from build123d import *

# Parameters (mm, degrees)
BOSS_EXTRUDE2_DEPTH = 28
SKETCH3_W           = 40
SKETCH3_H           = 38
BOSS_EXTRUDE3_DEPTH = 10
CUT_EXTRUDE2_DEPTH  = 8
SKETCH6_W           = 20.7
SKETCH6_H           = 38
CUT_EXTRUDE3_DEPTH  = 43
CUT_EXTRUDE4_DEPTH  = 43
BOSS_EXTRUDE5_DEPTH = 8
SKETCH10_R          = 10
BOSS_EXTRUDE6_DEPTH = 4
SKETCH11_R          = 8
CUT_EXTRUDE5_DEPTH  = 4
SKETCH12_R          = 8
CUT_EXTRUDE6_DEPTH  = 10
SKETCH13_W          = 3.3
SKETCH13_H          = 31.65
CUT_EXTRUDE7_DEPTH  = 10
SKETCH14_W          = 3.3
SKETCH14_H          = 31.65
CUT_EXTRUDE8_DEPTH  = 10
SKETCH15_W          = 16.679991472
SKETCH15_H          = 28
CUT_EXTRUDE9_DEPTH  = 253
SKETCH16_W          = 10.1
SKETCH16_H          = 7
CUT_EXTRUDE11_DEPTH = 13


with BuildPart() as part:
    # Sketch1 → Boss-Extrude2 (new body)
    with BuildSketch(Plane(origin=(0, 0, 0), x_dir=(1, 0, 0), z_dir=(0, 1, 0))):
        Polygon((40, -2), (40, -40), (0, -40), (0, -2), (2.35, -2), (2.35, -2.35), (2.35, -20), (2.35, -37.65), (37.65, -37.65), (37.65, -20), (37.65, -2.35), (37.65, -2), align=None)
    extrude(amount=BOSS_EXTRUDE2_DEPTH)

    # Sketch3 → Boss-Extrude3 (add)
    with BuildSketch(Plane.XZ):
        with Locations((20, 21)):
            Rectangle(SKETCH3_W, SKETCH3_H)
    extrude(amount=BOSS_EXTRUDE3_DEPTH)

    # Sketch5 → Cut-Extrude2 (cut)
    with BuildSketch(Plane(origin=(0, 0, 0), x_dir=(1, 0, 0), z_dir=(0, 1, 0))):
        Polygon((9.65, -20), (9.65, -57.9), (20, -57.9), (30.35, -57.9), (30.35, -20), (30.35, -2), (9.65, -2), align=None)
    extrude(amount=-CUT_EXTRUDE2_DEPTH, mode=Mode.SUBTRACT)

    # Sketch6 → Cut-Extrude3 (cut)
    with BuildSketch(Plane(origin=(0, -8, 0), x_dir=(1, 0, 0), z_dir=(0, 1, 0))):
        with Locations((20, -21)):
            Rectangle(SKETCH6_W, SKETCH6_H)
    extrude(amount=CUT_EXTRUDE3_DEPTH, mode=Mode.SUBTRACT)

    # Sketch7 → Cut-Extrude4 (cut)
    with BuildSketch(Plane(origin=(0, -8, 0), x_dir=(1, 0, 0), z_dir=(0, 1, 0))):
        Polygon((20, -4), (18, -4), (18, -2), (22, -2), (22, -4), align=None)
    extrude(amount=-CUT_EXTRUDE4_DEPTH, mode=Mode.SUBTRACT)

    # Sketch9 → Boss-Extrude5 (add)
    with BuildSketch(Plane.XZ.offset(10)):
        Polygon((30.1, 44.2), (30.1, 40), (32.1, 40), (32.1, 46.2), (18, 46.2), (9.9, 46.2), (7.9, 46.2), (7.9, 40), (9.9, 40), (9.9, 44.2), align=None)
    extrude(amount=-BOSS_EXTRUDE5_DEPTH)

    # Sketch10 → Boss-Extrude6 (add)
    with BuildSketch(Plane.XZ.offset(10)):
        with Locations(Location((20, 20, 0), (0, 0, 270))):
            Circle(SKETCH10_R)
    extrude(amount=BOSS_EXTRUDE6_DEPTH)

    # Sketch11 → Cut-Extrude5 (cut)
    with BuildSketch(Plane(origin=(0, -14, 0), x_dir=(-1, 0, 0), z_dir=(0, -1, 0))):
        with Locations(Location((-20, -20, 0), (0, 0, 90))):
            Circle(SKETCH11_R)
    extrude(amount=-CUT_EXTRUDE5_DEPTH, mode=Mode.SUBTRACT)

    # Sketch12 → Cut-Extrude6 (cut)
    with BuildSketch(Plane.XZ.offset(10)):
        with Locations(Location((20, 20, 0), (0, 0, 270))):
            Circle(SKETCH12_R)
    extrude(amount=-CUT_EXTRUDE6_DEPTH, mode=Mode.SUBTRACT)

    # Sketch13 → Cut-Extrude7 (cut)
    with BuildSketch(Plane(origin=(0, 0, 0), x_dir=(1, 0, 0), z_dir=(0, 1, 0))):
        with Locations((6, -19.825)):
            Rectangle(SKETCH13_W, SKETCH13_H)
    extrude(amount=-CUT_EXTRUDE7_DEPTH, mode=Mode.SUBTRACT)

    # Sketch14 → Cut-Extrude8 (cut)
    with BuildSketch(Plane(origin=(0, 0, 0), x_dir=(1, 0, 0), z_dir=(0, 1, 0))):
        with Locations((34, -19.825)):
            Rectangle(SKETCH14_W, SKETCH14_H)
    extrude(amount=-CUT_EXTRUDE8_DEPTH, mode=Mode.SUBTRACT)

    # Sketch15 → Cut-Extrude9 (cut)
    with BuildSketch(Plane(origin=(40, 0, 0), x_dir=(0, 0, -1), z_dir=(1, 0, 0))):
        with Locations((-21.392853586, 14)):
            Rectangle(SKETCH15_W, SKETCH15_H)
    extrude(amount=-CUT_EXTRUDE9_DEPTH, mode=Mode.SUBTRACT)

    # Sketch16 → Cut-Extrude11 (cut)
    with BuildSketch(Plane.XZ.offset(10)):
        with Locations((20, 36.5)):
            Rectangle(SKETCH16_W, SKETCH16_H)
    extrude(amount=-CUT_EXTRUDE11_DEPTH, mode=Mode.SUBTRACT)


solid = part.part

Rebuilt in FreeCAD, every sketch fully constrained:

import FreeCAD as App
import Part
import Sketcher

V = App.Vector
Q = App.Units.Quantity


def add_polygon(sketch, points):
    """Adds a closed chain of lines whose ends are joined by coincident constraints."""
    first, n = sketch.GeometryCount, len(points)
    for a, b in zip(points, points[1:] + points[:1]):
        sketch.addGeometry(Part.LineSegment(App.Vector(*a, 0), App.Vector(*b, 0)), False)
    for i in range(n):
        sketch.addConstraint(Sketcher.Constraint("Coincident", first + i, 2, first + (i + 1) % n, 1))

doc = App.newDocument("Part")
body = doc.addObject("PartDesign::Body", "Body")

sketch1 = body.newObject("Sketcher::SketchObject", "Sketch")
sketch1.AttachmentSupport = (doc.getObject("XZ_Plane"), [""])
sketch1.MapMode = "FlatFace"
add_polygon(sketch1, [(40, 40), (40, 2), (37.6, 2), (37.6, 37.6), (2.4, 37.6), (2.4, 2), (0, 2), (0, 40)])
sketch1.addConstraint(Sketcher.Constraint("Vertical", 0))
sketch1.addConstraint(Sketcher.Constraint("Horizontal", 1))
sketch1.addConstraint(Sketcher.Constraint("Vertical", 2))
sketch1.addConstraint(Sketcher.Constraint("Horizontal", 3))
sketch1.addConstraint(Sketcher.Constraint("Vertical", 4))
sketch1.addConstraint(Sketcher.Constraint("Horizontal", 5))
sketch1.addConstraint(Sketcher.Constraint("Vertical", 6))
sketch1.addConstraint(Sketcher.Constraint("Horizontal", 7))
sketch1.addConstraint(Sketcher.Constraint("PointOnObject", 5, 2, -2))
sketch1.addConstraint(Sketcher.Constraint("Horizontal", 1, 2, 4, 2))
sketch1.addConstraint(Sketcher.Constraint("Equal", 1, 5))
sketch1.addConstraint(Sketcher.Constraint("DistanceX", 7, 1, 7, 2, Q("40 mm")))
sketch1.addConstraint(Sketcher.Constraint("DistanceY", 0, 2, 0, 1, Q("38 mm")))
sketch1.addConstraint(Sketcher.Constraint("DistanceX", 3, 2, 3, 1, Q("35.3 mm")))
sketch1.addConstraint(Sketcher.Constraint("DistanceY", -1, 1, 0, 2, Q("2 mm")))
sketch1.addConstraint(Sketcher.Constraint("DistanceY", 2, 1, 2, 2, Q("35.65 mm")))
pad1 = body.newObject("PartDesign::Pad", "Pad")
pad1.Profile = sketch1
pad1.Length = 28
pad1.Reversed = True

sketch2 = body.newObject("Sketcher::SketchObject", "Sketch001")
sketch2.AttachmentSupport = (doc.getObject("XZ_Plane"), [""])
sketch2.MapMode = "FlatFace"
add_polygon(sketch2, [(0, 40), (0, 2), (40, 2), (40, 40)])
sketch2.addConstraint(Sketcher.Constraint("Vertical", 0))
sketch2.addConstraint(Sketcher.Constraint("Horizontal", 1))
sketch2.addConstraint(Sketcher.Constraint("Vertical", 2))
sketch2.addConstraint(Sketcher.Constraint("Horizontal", 3))
sketch2.addConstraint(Sketcher.Constraint("PointOnObject", 0, 2, -2))
sketch2.addConstraint(Sketcher.Constraint("DistanceX", 1, 1, 1, 2, Q("40 mm")))
sketch2.addConstraint(Sketcher.Constraint("DistanceY", 0, 2, 0, 1, Q("38 mm")))
sketch2.addConstraint(Sketcher.Constraint("DistanceY", -1, 1, 0, 2, Q("2 mm")))
pad2 = body.newObject("PartDesign::Pad", "Pad001")
pad2.Profile = sketch2
pad2.Length = 10

sketch3 = body.newObject("Sketcher::SketchObject", "Sketch002")
sketch3.AttachmentSupport = (doc.getObject("XZ_Plane"), [""])
sketch3.MapMode = "FlatFace"
add_polygon(sketch3, [(10, 58), (30, 58), (30, 2), (10, 2)])
sketch3.addConstraint(Sketcher.Constraint("Horizontal", 0))
sketch3.addConstraint(Sketcher.Constraint("Vertical", 1))
sketch3.addConstraint(Sketcher.Constraint("Horizontal", 2))
sketch3.addConstraint(Sketcher.Constraint("Vertical", 3))
sketch3.addConstraint(Sketcher.Constraint("DistanceX", 0, 1, 0, 2, Q("20.7 mm")))
sketch3.addConstraint(Sketcher.Constraint("DistanceY", 1, 2, 1, 1, Q("55.9 mm")))
sketch3.addConstraint(Sketcher.Constraint("DistanceY", -1, 1, 1, 2, Q("2 mm")))
sketch3.addConstraint(Sketcher.Constraint("DistanceX", -1, 1, 0, 2, Q("30.35 mm")))
pocket1 = body.newObject("PartDesign::Pocket", "Pocket")
pocket1.Profile = sketch3
pocket1.Length = 8
pocket1.Reversed = True

sketch4 = body.newObject("Sketcher::SketchObject", "Sketch003")
sketch4.AttachmentSupport = (doc.getObject("XZ_Plane"), [""])
sketch4.MapMode = "FlatFace"
sketch4.AttachmentOffset = App.Placement(V(0, 0, 8), App.Rotation())
add_polygon(sketch4, [(10, 2), (10, 40), (30, 40), (30, 2)])
sketch4.addConstraint(Sketcher.Constraint("Vertical", 0))
sketch4.addConstraint(Sketcher.Constraint("Horizontal", 1))
sketch4.addConstraint(Sketcher.Constraint("Vertical", 2))
sketch4.addConstraint(Sketcher.Constraint("Horizontal", 3))
sketch4.addConstraint(Sketcher.Constraint("DistanceY", 0, 1, 0, 2, Q("38 mm")))
sketch4.addConstraint(Sketcher.Constraint("DistanceX", 1, 1, 1, 2, Q("20.7 mm")))
sketch4.addConstraint(Sketcher.Constraint("DistanceY", -1, 1, 0, 2, Q("40 mm")))
sketch4.addConstraint(Sketcher.Constraint("DistanceX", -1, 1, 0, 2, Q("9.65 mm")))
pocket2 = body.newObject("PartDesign::Pocket", "Pocket001")
pocket2.Profile = sketch4
pocket2.Length = 43

sketch5 = body.newObject("Sketcher::SketchObject", "Sketch004")
sketch5.AttachmentSupport = (doc.getObject("XZ_Plane"), [""])
sketch5.MapMode = "FlatFace"
sketch5.AttachmentOffset = App.Placement(V(0, 0, 8), App.Rotation())
add_polygon(sketch5, [(18, 4), (22, 4), (22, 2), (18, 2)])
sketch5.addConstraint(Sketcher.Constraint("Horizontal", 0))
sketch5.addConstraint(Sketcher.Constraint("Vertical", 1))
sketch5.addConstraint(Sketcher.Constraint("Horizontal", 2))
sketch5.addConstraint(Sketcher.Constraint("Vertical", 3))
sketch5.addConstraint(Sketcher.Constraint("DistanceX", 0, 1, 0, 2, Q("4 mm")))
sketch5.addConstraint(Sketcher.Constraint("DistanceY", 1, 2, 1, 1, Q("2 mm")))
sketch5.addConstraint(Sketcher.Constraint("DistanceX", -1, 1, 0, 2, Q("22 mm")))
sketch5.addConstraint(Sketcher.Constraint("DistanceY", -1, 1, 0, 2, Q("4 mm")))
pocket3 = body.newObject("PartDesign::Pocket", "Pocket002")
pocket3.Profile = sketch5
pocket3.Length = 43
pocket3.Reversed = True

sketch6 = body.newObject("Sketcher::SketchObject", "Sketch005")
sketch6.AttachmentSupport = (doc.getObject("XZ_Plane"), [""])
sketch6.MapMode = "FlatFace"
sketch6.AttachmentOffset = App.Placement(V(0, 0, 10), App.Rotation())
add_polygon(sketch6, [(30.1, 44.2), (30.1, 40), (32.1, 40), (32.1, 46.2), (7.9, 46.2), (7.9, 40), (9.9, 40), (9.9, 44.2)])
sketch6.addConstraint(Sketcher.Constraint("Vertical", 0))
sketch6.addConstraint(Sketcher.Constraint("Horizontal", 1))
sketch6.addConstraint(Sketcher.Constraint("Vertical", 2))
sketch6.addConstraint(Sketcher.Constraint("Horizontal", 3))
sketch6.addConstraint(Sketcher.Constraint("Vertical", 4))
sketch6.addConstraint(Sketcher.Constraint("Horizontal", 5))
sketch6.addConstraint(Sketcher.Constraint("Vertical", 6))
sketch6.addConstraint(Sketcher.Constraint("Horizontal", 7))
sketch6.addConstraint(Sketcher.Constraint("Horizontal", 1, 2, 4, 2))
sketch6.addConstraint(Sketcher.Constraint("Equal", 1, 5))
sketch6.addConstraint(Sketcher.Constraint("DistanceX", 1, 1, 1, 2, Q("2 mm")))
sketch6.addConstraint(Sketcher.Constraint("DistanceX", 3, 2, 3, 1, Q("24.2 mm")))
sketch6.addConstraint(Sketcher.Constraint("DistanceY", 0, 2, 0, 1, Q("4.2 mm")))
sketch6.addConstraint(Sketcher.Constraint("DistanceY", 2, 1, 2, 2, Q("6.2 mm")))
sketch6.addConstraint(Sketcher.Constraint("DistanceY", -1, 1, 0, 2, Q("40 mm")))
sketch6.addConstraint(Sketcher.Constraint("DistanceX", -1, 1, 0, 2, Q("30.1 mm")))
pad3 = body.newObject("PartDesign::Pad", "Pad002")
pad3.Profile = sketch6
pad3.Length = 8
pad3.Reversed = True

sketch7 = body.newObject("Sketcher::SketchObject", "Sketch006")
sketch7.AttachmentSupport = (doc.getObject("XZ_Plane"), [""])
sketch7.MapMode = "FlatFace"
sketch7.AttachmentOffset = App.Placement(V(0, 0, 10), App.Rotation())
sketch7.addGeometry(Part.Circle(V(20, 20, 0), V(0, 0, 1), 10), False)
sketch7.addConstraint(Sketcher.Constraint("Diameter", 0, Q("20 mm")))
sketch7.addConstraint(Sketcher.Constraint("DistanceX", -1, 1, 0, 3, Q("20 mm")))
sketch7.addConstraint(Sketcher.Constraint("DistanceY", -1, 1, 0, 3, Q("20 mm")))
pad4 = body.newObject("PartDesign::Pad", "Pad003")
pad4.Profile = sketch7
pad4.Length = 4

sketch8 = body.newObject("Sketcher::SketchObject", "Sketch007")
sketch8.AttachmentSupport = (doc.getObject("XZ_Plane"), [""])
sketch8.MapMode = "FlatFace"
sketch8.AttachmentOffset = App.Placement(V(0, 0, 14), App.Rotation())
sketch8.addGeometry(Part.Circle(V(20, 20, 0), V(0, 0, 1), 8), False)
sketch8.addConstraint(Sketcher.Constraint("Diameter", 0, Q("16 mm")))
sketch8.addConstraint(Sketcher.Constraint("DistanceX", -1, 1, 0, 3, Q("20 mm")))
sketch8.addConstraint(Sketcher.Constraint("DistanceY", -1, 1, 0, 3, Q("20 mm")))
pocket4 = body.newObject("PartDesign::Pocket", "Pocket003")
pocket4.Profile = sketch8
pocket4.Length = 4

sketch9 = body.newObject("Sketcher::SketchObject", "Sketch008")
sketch9.AttachmentSupport = (doc.getObject("XZ_Plane"), [""])
sketch9.MapMode = "FlatFace"
sketch9.AttachmentOffset = App.Placement(V(0, 0, 10), App.Rotation())
sketch9.addGeometry(Part.Circle(V(20, 20, 0), V(0, 0, 1), 8), False)
sketch9.addConstraint(Sketcher.Constraint("Diameter", 0, Q("16 mm")))
sketch9.addConstraint(Sketcher.Constraint("DistanceX", -1, 1, 0, 3, Q("20 mm")))
sketch9.addConstraint(Sketcher.Constraint("DistanceY", -1, 1, 0, 3, Q("20 mm")))
pocket5 = body.newObject("PartDesign::Pocket", "Pocket004")
pocket5.Profile = sketch9
pocket5.Length = 10

sketch10 = body.newObject("Sketcher::SketchObject", "Sketch009")
sketch10.AttachmentSupport = (doc.getObject("XZ_Plane"), [""])
sketch10.MapMode = "FlatFace"
add_polygon(sketch10, [(4.3, 4), (4.3, 35.6), (7.7, 35.6), (7.7, 4)])
sketch10.addConstraint(Sketcher.Constraint("Vertical", 0))
sketch10.addConstraint(Sketcher.Constraint("Horizontal", 1))
sketch10.addConstraint(Sketcher.Constraint("Vertical", 2))
sketch10.addConstraint(Sketcher.Constraint("Horizontal", 3))
sketch10.addConstraint(Sketcher.Constraint("DistanceX", 1, 1, 1, 2, Q("3.3 mm")))
sketch10.addConstraint(Sketcher.Constraint("DistanceY", -1, 1, 2, 2, Q("4 mm")))
sketch10.addConstraint(Sketcher.Constraint("DistanceY", 0, 1, 0, 2, Q("31.65 mm")))
sketch10.addConstraint(Sketcher.Constraint("DistanceX", -1, 1, 0, 2, Q("4.35 mm")))
pocket6 = body.newObject("PartDesign::Pocket", "Pocket005")
pocket6.Profile = sketch10
pocket6.Length = 10
pocket6.Reversed = True

sketch11 = body.newObject("Sketcher::SketchObject", "Sketch010")
sketch11.AttachmentSupport = (doc.getObject("XZ_Plane"), [""])
sketch11.MapMode = "FlatFace"
add_polygon(sketch11, [(32.4, 4), (32.4, 35.6), (35.6, 35.6), (35.6, 4)])
sketch11.addConstraint(Sketcher.Constraint("Vertical", 0))
sketch11.addConstraint(Sketcher.Constraint("Horizontal", 1))
sketch11.addConstraint(Sketcher.Constraint("Vertical", 2))
sketch11.addConstraint(Sketcher.Constraint("Horizontal", 3))
sketch11.addConstraint(Sketcher.Constraint("DistanceX", 1, 1, 1, 2, Q("3.3 mm")))
sketch11.addConstraint(Sketcher.Constraint("DistanceY", -1, 1, 2, 2, Q("4 mm")))
sketch11.addConstraint(Sketcher.Constraint("DistanceY", 0, 1, 0, 2, Q("31.65 mm")))
sketch11.addConstraint(Sketcher.Constraint("DistanceX", -1, 1, 0, 2, Q("32.35 mm")))
pocket7 = body.newObject("PartDesign::Pocket", "Pocket006")
pocket7.Profile = sketch11
pocket7.Length = 10
pocket7.Reversed = True

sketch12 = body.newObject("Sketcher::SketchObject", "Sketch011")
sketch12.AttachmentSupport = (doc.getObject("YZ_Plane"), [""])
sketch12.MapMode = "FlatFace"
sketch12.AttachmentOffset = App.Placement(V(0, 0, 40), App.Rotation())
add_polygon(sketch12, [(28, 30), (0, 30), (0, 13), (28, 13)])
sketch12.addConstraint(Sketcher.Constraint("Horizontal", 0))
sketch12.addConstraint(Sketcher.Constraint("Vertical", 1))
sketch12.addConstraint(Sketcher.Constraint("Horizontal", 2))
sketch12.addConstraint(Sketcher.Constraint("Vertical", 3))
sketch12.addConstraint(Sketcher.Constraint("PointOnObject", 0, 2, -2))
sketch12.addConstraint(Sketcher.Constraint("DistanceX", 0, 2, 0, 1, Q("28 mm")))
sketch12.addConstraint(Sketcher.Constraint("DistanceY", 1, 2, 1, 1, Q("16.679991 mm")))
sketch12.addConstraint(Sketcher.Constraint("DistanceY", -1, 1, 0, 2, Q("29.732849 mm")))
pocket8 = body.newObject("PartDesign::Pocket", "Pocket007")
pocket8.Profile = sketch12
pocket8.Length = 253

sketch13 = body.newObject("Sketcher::SketchObject", "Sketch012")
sketch13.AttachmentSupport = (doc.getObject("XZ_Plane"), [""])
sketch13.MapMode = "FlatFace"
sketch13.AttachmentOffset = App.Placement(V(0, 0, 10), App.Rotation())
add_polygon(sketch13, [(15, 40), (15, 33), (25, 33), (25, 40)])
sketch13.addConstraint(Sketcher.Constraint("Vertical", 0))
sketch13.addConstraint(Sketcher.Constraint("Horizontal", 1))
sketch13.addConstraint(Sketcher.Constraint("Vertical", 2))
sketch13.addConstraint(Sketcher.Constraint("Horizontal", 3))
sketch13.addConstraint(Sketcher.Constraint("DistanceY", 0, 2, 0, 1, Q("7 mm")))
sketch13.addConstraint(Sketcher.Constraint("DistanceX", 1, 1, 1, 2, Q("10.1 mm")))
sketch13.addConstraint(Sketcher.Constraint("DistanceY", -1, 1, 0, 2, Q("33 mm")))
sketch13.addConstraint(Sketcher.Constraint("DistanceX", -1, 1, 0, 2, Q("14.95 mm")))
pocket9 = body.newObject("PartDesign::Pocket", "Pocket008")
pocket9.Profile = sketch13
pocket9.Length = 13

doc.recompute()
